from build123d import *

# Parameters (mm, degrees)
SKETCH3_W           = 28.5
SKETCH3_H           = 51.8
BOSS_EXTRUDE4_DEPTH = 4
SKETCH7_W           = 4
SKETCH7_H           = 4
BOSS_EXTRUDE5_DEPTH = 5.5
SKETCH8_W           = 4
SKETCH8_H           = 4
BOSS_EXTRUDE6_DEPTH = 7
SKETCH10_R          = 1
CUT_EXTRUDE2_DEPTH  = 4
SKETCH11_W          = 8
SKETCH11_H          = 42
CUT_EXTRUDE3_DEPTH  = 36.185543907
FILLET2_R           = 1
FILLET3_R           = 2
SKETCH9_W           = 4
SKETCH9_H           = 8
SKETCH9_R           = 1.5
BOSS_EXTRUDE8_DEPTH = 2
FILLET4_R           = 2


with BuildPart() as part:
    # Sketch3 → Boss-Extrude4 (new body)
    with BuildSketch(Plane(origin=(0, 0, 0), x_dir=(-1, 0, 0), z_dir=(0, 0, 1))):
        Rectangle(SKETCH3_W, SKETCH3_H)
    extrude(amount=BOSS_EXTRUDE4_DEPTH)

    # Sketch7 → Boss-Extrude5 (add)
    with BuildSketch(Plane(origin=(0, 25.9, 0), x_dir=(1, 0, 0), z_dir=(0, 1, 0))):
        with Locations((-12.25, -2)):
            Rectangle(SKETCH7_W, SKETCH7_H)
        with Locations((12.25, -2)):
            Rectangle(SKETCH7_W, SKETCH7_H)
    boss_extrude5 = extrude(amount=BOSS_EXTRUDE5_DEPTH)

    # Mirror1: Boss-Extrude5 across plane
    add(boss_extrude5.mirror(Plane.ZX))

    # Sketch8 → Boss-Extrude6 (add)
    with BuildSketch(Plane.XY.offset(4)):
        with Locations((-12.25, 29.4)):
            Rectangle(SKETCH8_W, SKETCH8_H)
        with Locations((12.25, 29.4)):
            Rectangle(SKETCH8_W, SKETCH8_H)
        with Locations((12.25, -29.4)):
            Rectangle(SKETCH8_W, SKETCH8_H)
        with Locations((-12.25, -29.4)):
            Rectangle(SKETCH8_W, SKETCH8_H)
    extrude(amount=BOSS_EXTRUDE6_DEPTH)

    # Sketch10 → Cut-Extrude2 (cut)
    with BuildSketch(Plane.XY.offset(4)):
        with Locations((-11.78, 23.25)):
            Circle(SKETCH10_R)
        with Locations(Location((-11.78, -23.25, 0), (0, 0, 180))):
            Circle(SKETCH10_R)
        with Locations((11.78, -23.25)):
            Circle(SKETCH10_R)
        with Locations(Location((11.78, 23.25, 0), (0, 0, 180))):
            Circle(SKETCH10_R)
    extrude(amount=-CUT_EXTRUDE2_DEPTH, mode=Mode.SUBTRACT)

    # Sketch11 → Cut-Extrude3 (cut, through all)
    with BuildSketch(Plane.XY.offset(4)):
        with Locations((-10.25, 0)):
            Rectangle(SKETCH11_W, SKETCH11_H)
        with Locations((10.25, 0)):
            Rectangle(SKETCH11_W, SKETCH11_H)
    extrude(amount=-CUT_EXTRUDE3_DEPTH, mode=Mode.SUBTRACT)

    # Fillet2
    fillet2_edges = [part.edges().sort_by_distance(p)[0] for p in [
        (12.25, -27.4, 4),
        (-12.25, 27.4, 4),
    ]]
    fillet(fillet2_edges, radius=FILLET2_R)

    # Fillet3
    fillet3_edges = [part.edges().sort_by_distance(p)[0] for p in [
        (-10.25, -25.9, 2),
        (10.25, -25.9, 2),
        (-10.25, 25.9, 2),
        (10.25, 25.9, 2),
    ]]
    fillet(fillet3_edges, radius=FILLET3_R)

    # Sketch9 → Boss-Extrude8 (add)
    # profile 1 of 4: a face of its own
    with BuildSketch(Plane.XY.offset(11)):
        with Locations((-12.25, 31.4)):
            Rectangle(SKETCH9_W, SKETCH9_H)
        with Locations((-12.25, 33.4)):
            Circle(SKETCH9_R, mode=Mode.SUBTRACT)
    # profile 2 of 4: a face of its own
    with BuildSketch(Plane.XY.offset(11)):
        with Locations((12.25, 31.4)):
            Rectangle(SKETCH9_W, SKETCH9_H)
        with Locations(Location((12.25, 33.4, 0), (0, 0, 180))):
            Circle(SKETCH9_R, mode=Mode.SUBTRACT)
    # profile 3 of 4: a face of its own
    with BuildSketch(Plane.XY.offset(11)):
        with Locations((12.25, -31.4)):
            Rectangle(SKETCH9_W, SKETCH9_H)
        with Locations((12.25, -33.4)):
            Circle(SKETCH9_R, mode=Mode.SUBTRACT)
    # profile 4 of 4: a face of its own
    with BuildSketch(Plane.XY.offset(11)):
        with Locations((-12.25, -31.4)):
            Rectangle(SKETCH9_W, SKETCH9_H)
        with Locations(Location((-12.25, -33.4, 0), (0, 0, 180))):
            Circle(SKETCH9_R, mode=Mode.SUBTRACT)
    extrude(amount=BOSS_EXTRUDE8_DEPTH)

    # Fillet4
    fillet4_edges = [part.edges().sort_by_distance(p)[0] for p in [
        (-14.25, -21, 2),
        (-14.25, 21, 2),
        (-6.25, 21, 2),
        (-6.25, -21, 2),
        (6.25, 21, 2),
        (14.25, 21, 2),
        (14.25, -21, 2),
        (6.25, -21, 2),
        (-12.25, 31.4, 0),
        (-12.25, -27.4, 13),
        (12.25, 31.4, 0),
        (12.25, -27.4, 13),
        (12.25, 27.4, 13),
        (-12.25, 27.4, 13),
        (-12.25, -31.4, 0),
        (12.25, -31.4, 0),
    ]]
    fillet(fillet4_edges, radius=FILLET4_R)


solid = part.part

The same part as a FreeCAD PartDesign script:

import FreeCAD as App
import Part
import Sketcher
Q = App.Units.Quantity


def edges_at(feature, points):
    """Names of the edges that pass closest to the given points."""
    edges = feature.Shape.Edges
    near = lambda p: min(range(len(edges)), key=lambda i: edges[i].distToShape(Part.Vertex(*p))[0])
    return sorted({f"Edge{near(p) + 1}" for p in points})


def add_polygon(sketch, points):
    """Adds a closed chain of lines whose ends are joined by coincident constraints."""
    first, n = sketch.GeometryCount, len(points)
    for a, b in zip(points, points[1:] + points[:1]):
        sketch.addGeometry(Part.LineSegment(App.Vector(*a, 0), App.Vector(*b, 0)), False)
    for i in range(n):
        sketch.addConstraint(Sketcher.Constraint("Coincident", first + i, 2, first + (i + 1) % n, 1))

doc = App.newDocument("Part")
body = doc.addObject("PartDesign::Body", "Body")

# Sketch on XY plane
sketch1 = doc.addObject("Sketcher::SketchObject", "Sketch")
body.addObject(sketch1)
sketch1.AttachmentSupport = (doc.XY_Plane, [""])
sketch1.MapMode = "FlatFace"
add_polygon(sketch1, [(14.25, -25.9), (14.25, 25.9), (-14.25, 25.9), (-14.25, -25.9)])  # lines 0-3
sketch1.addConstraint([
    Sketcher.Constraint("Vertical", 0),
    Sketcher.Constraint("Horizontal", 1),
    Sketcher.Constraint("Vertical", 2),
    Sketcher.Constraint("Horizontal", 3),
    Sketcher.Constraint("Symmetric", 0, 2, 2, 2, -1, 1),
    Sketcher.Constraint("DistanceX", 1, 2, 1, 1, Q("28.5 mm")),
    Sketcher.Constraint("DistanceY", 0, 1, 0, 2, Q("51.8 mm")),
])
pad1 = doc.addObject("PartDesign::Pad", "Pad")
body.addObject(pad1)
pad1.Profile = sketch1
pad1.Length = 4

# Sketch on XZ plane
sketch2 = doc.addObject("Sketcher::SketchObject", "Sketch001")
body.addObject(sketch2)
sketch2.AttachmentSupport = (doc.XZ_Plane, [""])
sketch2.MapMode = "FlatFace"
sketch2.AttachmentOffset = App.Placement(App.Vector(0, 0, -25.9), App.Rotation())
add_polygon(sketch2, [(-14.25, 0), (-14.25, 4), (-10.25, 4), (-10.25, 0)])  # lines 0-3
add_polygon(sketch2, [(10.25, 0), (10.25, 4), (14.25, 4), (14.25, 0)])  # lines 4-7
sketch2.addConstraint([
    Sketcher.Constraint("Vertical", 0),
    Sketcher.Constraint("Horizontal", 1),
    Sketcher.Constraint("Vertical", 2),
    Sketcher.Constraint("Horizontal", 3),
    Sketcher.Constraint("Vertical", 4),
    Sketcher.Constraint("Horizontal", 5),
    Sketcher.Constraint("Vertical", 6),
    Sketcher.Constraint("Horizontal", 7),
    Sketcher.Constraint("Symmetric", 3, 2, 6, 2, -1, 1),
    Sketcher.Constraint("Symmetric", 1, 2, 4, 2, -2),
    Sketcher.Constraint("PointOnObject", 2, 2, -1),
    Sketcher.Constraint("Equal", 7, 0),
    Sketcher.Constraint("DistanceX", 1, 1, 1, 2, Q("4 mm")),
    Sketcher.Constraint("DistanceX", 1, 2, 4, 2, Q("20.5 mm")),
])
pad2 = doc.addObject("PartDesign::Pad", "Pad001")
body.addObject(pad2)
pad2.Profile = sketch2
pad2.Length = 5.5
pad2.Reversed = True
doc.recompute()

mirrored = doc.addObject("PartDesign::Mirrored", "Mirrored")
body.addObject(mirrored)
mirrored.Originals = [pad2]
mirrored.MirrorPlane = (doc.XZ_Plane, [""])
body.Tip = mirrored

# Sketch on XY plane
sketch3 = doc.addObject("Sketcher::SketchObject", "Sketch002")
body.addObject(sketch3)
sketch3.AttachmentSupport = (doc.XY_Plane, [""])
sketch3.MapMode = "FlatFace"
sketch3.AttachmentOffset = App.Placement(App.Vector(0, 0, 4), App.Rotation())
add_polygon(sketch3, [(-14.25, 31.4), (-14.25, 27.4), (-10.25, 27.4), (-10.25, 31.4)])  # lines 0-3
add_polygon(sketch3, [(10.25, 31.4), (10.25, 27.4), (14.25, 27.4), (14.25, 31.4)])  # lines 4-7
add_polygon(sketch3, [(10.25, -27.4), (10.25, -31.4), (14.25, -31.4), (14.25, -27.4)])  # lines 8-11
add_polygon(sketch3, [(-14.25, -27.4), (-14.25, -31.4), (-10.25, -31.4), (-10.25, -27.4)])  # lines 12-15
sketch3.addConstraint([
    Sketcher.Constraint("Vertical", 0),
    Sketcher.Constraint("Horizontal", 1),
    Sketcher.Constraint("Vertical", 2),
    Sketcher.Constraint("Horizontal", 3),
    Sketcher.Constraint("Vertical", 4),
    Sketcher.Constraint("Horizontal", 5),
    Sketcher.Constraint("Vertical", 6),
    Sketcher.Constraint("Horizontal", 7),
    Sketcher.Constraint("Vertical", 8),
    Sketcher.Constraint("Horizontal", 9),
    Sketcher.Constraint("Vertical", 10),
    Sketcher.Constraint("Horizontal", 11),
    Sketcher.Constraint("Vertical", 12),
    Sketcher.Constraint("Horizontal", 13),
    Sketcher.Constraint("Vertical", 14),
    Sketcher.Constraint("Horizontal", 15),
    Sketcher.Constraint("Symmetric", 2, 2, 8, 2, -1, 1),
    Sketcher.Constraint("Symmetric", 0, 2, 10, 2, -1, 1),
    Sketcher.Constraint("Symmetric", 6, 2, 12, 2, -1, 1),
    Sketcher.Constraint("Symmetric", 4, 2, 14, 2, -1, 1),
    Sketcher.Constraint("Symmetric", 1, 2, 4, 2, -2),
    Sketcher.Constraint("Symmetric", 3, 2, 6, 2, -2),
    Sketcher.Constraint("Equal", 15, 0),
    Sketcher.Constraint("DistanceX", 1, 1, 1, 2, Q("4 mm")),
    Sketcher.Constraint("DistanceY", -1, 1, 0, 2, Q("27.4 mm")),
    Sketcher.Constraint("DistanceX", 1, 2, 4, 2, Q("20.5 mm")),
])
pad3 = doc.addObject("PartDesign::Pad", "Pad002")
body.addObject(pad3)
pad3.Profile = sketch3
pad3.Length = 7

# Sketch on XY plane
sketch4 = doc.addObject("Sketcher::SketchObject", "Sketch003")
body.addObject(sketch4)
sketch4.AttachmentSupport = (doc.XY_Plane, [""])
sketch4.MapMode = "FlatFace"
sketch4.AttachmentOffset = App.Placement(App.Vector(0, 0, 4), App.Rotation())
sketch4.addGeometry([
    Part.Circle(App.Vector(-11.78, 23.25, 0), App.Vector(0, 0, 1), 1),
    Part.Circle(App.Vector(-11.78, -23.25, 0), App.Vector(0, 0, 1), 1),
    Part.Circle(App.Vector(11.78, -23.25, 0), App.Vector(0, 0, 1), 1),
    Part.Circle(App.Vector(11.78, 23.25, 0), App.Vector(0, 0, 1), 1),
], False)
sketch4.addConstraint([
    Sketcher.Constraint("Equal", 0, 1),
    Sketcher.Constraint("Equal", 1, 2),
    Sketcher.Constraint("Equal", 2, 3),
    Sketcher.Constraint("Symmetric", 0, 3, 2, 3, -1, 1),
    Sketcher.Constraint("Symmetric", 1, 3, 3, 3, -1, 1),
    Sketcher.Constraint("Symmetric", 1, 3, 2, 3, -2),
    Sketcher.Constraint("Diameter", 0, Q("2 mm")),
    Sketcher.Constraint("DistanceY", 1, 3, 0, 3, Q("46.5 mm")),
    Sketcher.Constraint("DistanceX", 0, 3, -1, 1, Q("11.78 mm")),
])
pocket1 = doc.addObject("PartDesign::Pocket", "Pocket")
body.addObject(pocket1)
pocket1.Profile = sketch4
pocket1.Length = 4

# Sketch on XY plane
sketch5 = doc.addObject("Sketcher::SketchObject", "Sketch004")
body.addObject(sketch5)
sketch5.AttachmentSupport = (doc.XY_Plane, [""])
sketch5.MapMode = "FlatFace"
sketch5.AttachmentOffset = App.Placement(App.Vector(0, 0, 4), App.Rotation())
add_polygon(sketch5, [(-14.25, 21), (-14.25, -21), (-6.25, -21), (-6.25, 21)])  # lines 0-3
add_polygon(sketch5, [(6.25, 21), (6.25, -21), (14.25, -21), (14.25, 21)])  # lines 4-7
sketch5.addConstraint([
    Sketcher.Constraint("Vertical", 0),
    Sketcher.Constraint("Horizontal", 1),
    Sketcher.Constraint("Vertical", 2),
    Sketcher.Constraint("Horizontal", 3),
    Sketcher.Constraint("Vertical", 4),
    Sketcher.Constraint("Horizontal", 5),
    Sketcher.Constraint("Vertical", 6),
    Sketcher.Constraint("Horizontal", 7),
    Sketcher.Constraint("Symmetric", 2, 2, 4, 2, -1, 1),
    Sketcher.Constraint("Symmetric", 0, 2, 6, 2, -1, 1),
    Sketcher.Constraint("Horizontal", 1, 2, 4, 2),
    Sketcher.Constraint("DistanceX", 1, 1, 1, 2, Q("8 mm")),
    Sketcher.Constraint("DistanceY", 0, 2, 0, 1, Q("42 mm")),
    Sketcher.Constraint("DistanceX", 1, 2, 4, 2, Q("12.5 mm")),
])
pocket2 = doc.addObject("PartDesign::Pocket", "Pocket001")
body.addObject(pocket2)
pocket2.Profile = sketch5
pocket2.Type = "ThroughAll"
doc.recompute()

fillet = doc.addObject("PartDesign::Fillet", "Fillet")
body.addObject(fillet)
fillet.Base = (pocket2, edges_at(pocket2, [(12.25, -27.4, 4), (-12.25, 27.4, 4)]))
fillet.Radius = 1
doc.recompute()

fillet2 = doc.addObject("PartDesign::Fillet", "Fillet001")
body.addObject(fillet2)
fillet2.Base = (fillet, edges_at(fillet, [
    (-10.25, -25.9, 2),
    (10.25, -25.9, 2),
    (-10.25, 25.9, 2),
    (10.25, 25.9, 2),
]))
fillet2.Radius = 2

# Sketch on XY plane
sketch6 = doc.addObject("Sketcher::SketchObject", "Sketch005")
body.addObject(sketch6)
sketch6.AttachmentSupport = (doc.XY_Plane, [""])
sketch6.MapMode = "FlatFace"
sketch6.AttachmentOffset = App.Placement(App.Vector(0, 0, 11), App.Rotation())
add_polygon(sketch6, [(-14.25, 35.4), (-14.25, 27.4), (-10.25, 27.4), (-10.25, 35.4)])  # lines 0-3
sketch6.addGeometry(Part.Circle(App.Vector(-12.25, 33.4, 0), App.Vector(0, 0, 1), 1.5), False)  # 4
add_polygon(sketch6, [(10.25, 35.4), (10.25, 27.4), (14.25, 27.4), (14.25, 35.4)])  # lines 5-8
sketch6.addGeometry(Part.Circle(App.Vector(12.25, 33.4, 0), App.Vector(0, 0, 1), 1.5), False)  # 9
add_polygon(sketch6, [(10.25, -27.4), (10.25, -35.4), (14.25, -35.4), (14.25, -27.4)])  # lines 10-13
sketch6.addGeometry(Part.Circle(App.Vector(12.25, -33.4, 0), App.Vector(0, 0, 1), 1.5), False)  # 14
add_polygon(sketch6, [(-14.25, -27.4), (-14.25, -35.4), (-10.25, -35.4), (-10.25, -27.4)])  # lines 15-18
sketch6.addGeometry(Part.Circle(App.Vector(-12.25, -33.4, 0), App.Vector(0, 0, 1), 1.5), False)  # 19
sketch6.addConstraint([
    Sketcher.Constraint("Vertical", 0),
    Sketcher.Constraint("Horizontal", 1),
    Sketcher.Constraint("Vertical", 2),
    Sketcher.Constraint("Horizontal", 3),
    Sketcher.Constraint("Vertical", 5),
    Sketcher.Constraint("Horizontal", 6),
    Sketcher.Constraint("Vertical", 7),
    Sketcher.Constraint("Horizontal", 8),
    Sketcher.Constraint("Vertical", 10),
    Sketcher.Constraint("Horizontal", 11),
    Sketcher.Constraint("Vertical", 12),
    Sketcher.Constraint("Horizontal", 13),
    Sketcher.Constraint("Vertical", 15),
    Sketcher.Constraint("Horizontal", 16),
    Sketcher.Constraint("Vertical", 17),
    Sketcher.Constraint("Horizontal", 18),
    Sketcher.Constraint("Equal", 4, 9),
    Sketcher.Constraint("Equal", 9, 14),
    Sketcher.Constraint("Equal", 14, 19),
    Sketcher.Constraint("Symmetric", 4, 3, 14, 3, -1, 1),
    Sketcher.Constraint("Symmetric", 9, 3, 19, 3, -1, 1),
    Sketcher.Constraint("Symmetric", 2, 2, 10, 2, -1, 1),
    Sketcher.Constraint("Symmetric", 0, 2, 12, 2, -1, 1),
    Sketcher.Constraint("Symmetric", 7, 2, 15, 2, -1, 1),
    Sketcher.Constraint("Symmetric", 5, 2, 17, 2, -1, 1),
    Sketcher.Constraint("Symmetric", 4, 3, 9, 3, -2),
    Sketcher.Constraint("Symmetric", 1, 2, 5, 2, -2),
    Sketcher.Constraint("Symmetric", 3, 2, 7, 2, -2),
    Sketcher.Constraint("Diameter", 4, Q("3 mm")),
    Sketcher.Constraint("DistanceX", 1, 1, 1, 2, Q("4 mm")),
    Sketcher.Constraint("DistanceY", 0, 2, 0, 1, Q("8 mm")),
    Sketcher.Constraint("DistanceX", 0, 2, 4, 3, Q("2 mm")),
    Sketcher.Constraint("DistanceY", 0, 2, 4, 3, Q("6 mm")),
    Sketcher.Constraint("DistanceY", -1, 1, 4, 3, Q("33.4 mm")),
    Sketcher.Constraint("DistanceX", 4, 3, 9, 3, Q("24.5 mm")),
])
pad4 = doc.addObject("PartDesign::Pad", "Pad003")
body.addObject(pad4)
pad4.Profile = sketch6
pad4.Length = 2
doc.recompute()

fillet3 = doc.addObject("PartDesign::Fillet", "Fillet002")
body.addObject(fillet3)
fillet3.Base = (pad4, edges_at(pad4, [
    (-14.25, -21, 2),
    (-14.25, 21, 2),
    (-6.25, 21, 2),
    (-6.25, -21, 2),
    (6.25, 21, 2),
    (14.25, 21, 2),
    (14.25, -21, 2),
    (6.25, -21, 2),
    (-12.25, 31.4, 0),
    (-12.25, -27.4, 13),
    (12.25, 31.4, 0),
    (12.25, -27.4, 13),
    (12.25, 27.4, 13),
    (-12.25, 27.4, 13),
    (-12.25, -31.4, 0),
    (12.25, -31.4, 0),
]))
fillet3.Radius = 2

doc.recompute()
